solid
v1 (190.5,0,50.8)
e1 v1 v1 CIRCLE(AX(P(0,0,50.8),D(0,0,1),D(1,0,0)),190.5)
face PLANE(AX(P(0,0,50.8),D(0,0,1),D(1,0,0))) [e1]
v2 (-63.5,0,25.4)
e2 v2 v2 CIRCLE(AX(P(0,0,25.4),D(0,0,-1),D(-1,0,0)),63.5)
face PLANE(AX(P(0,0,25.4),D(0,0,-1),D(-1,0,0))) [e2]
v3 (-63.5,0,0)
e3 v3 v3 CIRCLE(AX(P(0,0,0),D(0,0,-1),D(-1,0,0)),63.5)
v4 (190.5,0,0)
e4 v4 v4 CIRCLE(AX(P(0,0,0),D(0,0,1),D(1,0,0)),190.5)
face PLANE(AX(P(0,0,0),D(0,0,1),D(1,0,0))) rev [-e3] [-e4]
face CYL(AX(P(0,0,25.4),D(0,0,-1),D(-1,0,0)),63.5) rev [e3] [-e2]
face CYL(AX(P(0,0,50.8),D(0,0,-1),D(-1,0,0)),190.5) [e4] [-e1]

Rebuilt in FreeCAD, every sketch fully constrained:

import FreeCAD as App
import Part
import Sketcher
Q = App.Units.Quantity

doc = App.newDocument("Part")
body = doc.addObject("PartDesign::Body", "Body")

sketch1 = body.newObject("Sketcher::SketchObject", "Sketch")
sketch1.AttachmentSupport = (doc.getObject("XY_Plane"), [""])
sketch1.MapMode = "FlatFace"
sketch1.addGeometry(Part.Circle(App.Vector(0, 0, 0), App.Vector(0, 0, 1), 190.5), False)
sketch1.addConstraint(Sketcher.Constraint("Coincident", 0, 3, -1, 1))
sketch1.addConstraint(Sketcher.Constraint("Diameter", 0, Q("15 in")))
pad1 = body.newObject("PartDesign::Pad", "Pad")
pad1.Profile = sketch1
pad1.Length = Q("2 in")

sketch2 = body.newObject("Sketcher::SketchObject", "Sketch001")
sketch2.AttachmentSupport = (doc.getObject("XY_Plane"), [""])
sketch2.MapMode = "FlatFace"
sketch2.addGeometry(Part.Circle(App.Vector(0, 0, 0), App.Vector(0, 0, 1), 63.5), False)
sketch2.addConstraint(Sketcher.Constraint("Coincident", 0, 3, -1, 1))
sketch2.addConstraint(Sketcher.Constraint("Diameter", 0, Q("5 in")))
pocket1 = body.newObject("PartDesign::Pocket", "Pocket")
pocket1.Profile = sketch2
pocket1.Length = Q("1 in")
pocket1.Reversed = True

doc.recompute()
